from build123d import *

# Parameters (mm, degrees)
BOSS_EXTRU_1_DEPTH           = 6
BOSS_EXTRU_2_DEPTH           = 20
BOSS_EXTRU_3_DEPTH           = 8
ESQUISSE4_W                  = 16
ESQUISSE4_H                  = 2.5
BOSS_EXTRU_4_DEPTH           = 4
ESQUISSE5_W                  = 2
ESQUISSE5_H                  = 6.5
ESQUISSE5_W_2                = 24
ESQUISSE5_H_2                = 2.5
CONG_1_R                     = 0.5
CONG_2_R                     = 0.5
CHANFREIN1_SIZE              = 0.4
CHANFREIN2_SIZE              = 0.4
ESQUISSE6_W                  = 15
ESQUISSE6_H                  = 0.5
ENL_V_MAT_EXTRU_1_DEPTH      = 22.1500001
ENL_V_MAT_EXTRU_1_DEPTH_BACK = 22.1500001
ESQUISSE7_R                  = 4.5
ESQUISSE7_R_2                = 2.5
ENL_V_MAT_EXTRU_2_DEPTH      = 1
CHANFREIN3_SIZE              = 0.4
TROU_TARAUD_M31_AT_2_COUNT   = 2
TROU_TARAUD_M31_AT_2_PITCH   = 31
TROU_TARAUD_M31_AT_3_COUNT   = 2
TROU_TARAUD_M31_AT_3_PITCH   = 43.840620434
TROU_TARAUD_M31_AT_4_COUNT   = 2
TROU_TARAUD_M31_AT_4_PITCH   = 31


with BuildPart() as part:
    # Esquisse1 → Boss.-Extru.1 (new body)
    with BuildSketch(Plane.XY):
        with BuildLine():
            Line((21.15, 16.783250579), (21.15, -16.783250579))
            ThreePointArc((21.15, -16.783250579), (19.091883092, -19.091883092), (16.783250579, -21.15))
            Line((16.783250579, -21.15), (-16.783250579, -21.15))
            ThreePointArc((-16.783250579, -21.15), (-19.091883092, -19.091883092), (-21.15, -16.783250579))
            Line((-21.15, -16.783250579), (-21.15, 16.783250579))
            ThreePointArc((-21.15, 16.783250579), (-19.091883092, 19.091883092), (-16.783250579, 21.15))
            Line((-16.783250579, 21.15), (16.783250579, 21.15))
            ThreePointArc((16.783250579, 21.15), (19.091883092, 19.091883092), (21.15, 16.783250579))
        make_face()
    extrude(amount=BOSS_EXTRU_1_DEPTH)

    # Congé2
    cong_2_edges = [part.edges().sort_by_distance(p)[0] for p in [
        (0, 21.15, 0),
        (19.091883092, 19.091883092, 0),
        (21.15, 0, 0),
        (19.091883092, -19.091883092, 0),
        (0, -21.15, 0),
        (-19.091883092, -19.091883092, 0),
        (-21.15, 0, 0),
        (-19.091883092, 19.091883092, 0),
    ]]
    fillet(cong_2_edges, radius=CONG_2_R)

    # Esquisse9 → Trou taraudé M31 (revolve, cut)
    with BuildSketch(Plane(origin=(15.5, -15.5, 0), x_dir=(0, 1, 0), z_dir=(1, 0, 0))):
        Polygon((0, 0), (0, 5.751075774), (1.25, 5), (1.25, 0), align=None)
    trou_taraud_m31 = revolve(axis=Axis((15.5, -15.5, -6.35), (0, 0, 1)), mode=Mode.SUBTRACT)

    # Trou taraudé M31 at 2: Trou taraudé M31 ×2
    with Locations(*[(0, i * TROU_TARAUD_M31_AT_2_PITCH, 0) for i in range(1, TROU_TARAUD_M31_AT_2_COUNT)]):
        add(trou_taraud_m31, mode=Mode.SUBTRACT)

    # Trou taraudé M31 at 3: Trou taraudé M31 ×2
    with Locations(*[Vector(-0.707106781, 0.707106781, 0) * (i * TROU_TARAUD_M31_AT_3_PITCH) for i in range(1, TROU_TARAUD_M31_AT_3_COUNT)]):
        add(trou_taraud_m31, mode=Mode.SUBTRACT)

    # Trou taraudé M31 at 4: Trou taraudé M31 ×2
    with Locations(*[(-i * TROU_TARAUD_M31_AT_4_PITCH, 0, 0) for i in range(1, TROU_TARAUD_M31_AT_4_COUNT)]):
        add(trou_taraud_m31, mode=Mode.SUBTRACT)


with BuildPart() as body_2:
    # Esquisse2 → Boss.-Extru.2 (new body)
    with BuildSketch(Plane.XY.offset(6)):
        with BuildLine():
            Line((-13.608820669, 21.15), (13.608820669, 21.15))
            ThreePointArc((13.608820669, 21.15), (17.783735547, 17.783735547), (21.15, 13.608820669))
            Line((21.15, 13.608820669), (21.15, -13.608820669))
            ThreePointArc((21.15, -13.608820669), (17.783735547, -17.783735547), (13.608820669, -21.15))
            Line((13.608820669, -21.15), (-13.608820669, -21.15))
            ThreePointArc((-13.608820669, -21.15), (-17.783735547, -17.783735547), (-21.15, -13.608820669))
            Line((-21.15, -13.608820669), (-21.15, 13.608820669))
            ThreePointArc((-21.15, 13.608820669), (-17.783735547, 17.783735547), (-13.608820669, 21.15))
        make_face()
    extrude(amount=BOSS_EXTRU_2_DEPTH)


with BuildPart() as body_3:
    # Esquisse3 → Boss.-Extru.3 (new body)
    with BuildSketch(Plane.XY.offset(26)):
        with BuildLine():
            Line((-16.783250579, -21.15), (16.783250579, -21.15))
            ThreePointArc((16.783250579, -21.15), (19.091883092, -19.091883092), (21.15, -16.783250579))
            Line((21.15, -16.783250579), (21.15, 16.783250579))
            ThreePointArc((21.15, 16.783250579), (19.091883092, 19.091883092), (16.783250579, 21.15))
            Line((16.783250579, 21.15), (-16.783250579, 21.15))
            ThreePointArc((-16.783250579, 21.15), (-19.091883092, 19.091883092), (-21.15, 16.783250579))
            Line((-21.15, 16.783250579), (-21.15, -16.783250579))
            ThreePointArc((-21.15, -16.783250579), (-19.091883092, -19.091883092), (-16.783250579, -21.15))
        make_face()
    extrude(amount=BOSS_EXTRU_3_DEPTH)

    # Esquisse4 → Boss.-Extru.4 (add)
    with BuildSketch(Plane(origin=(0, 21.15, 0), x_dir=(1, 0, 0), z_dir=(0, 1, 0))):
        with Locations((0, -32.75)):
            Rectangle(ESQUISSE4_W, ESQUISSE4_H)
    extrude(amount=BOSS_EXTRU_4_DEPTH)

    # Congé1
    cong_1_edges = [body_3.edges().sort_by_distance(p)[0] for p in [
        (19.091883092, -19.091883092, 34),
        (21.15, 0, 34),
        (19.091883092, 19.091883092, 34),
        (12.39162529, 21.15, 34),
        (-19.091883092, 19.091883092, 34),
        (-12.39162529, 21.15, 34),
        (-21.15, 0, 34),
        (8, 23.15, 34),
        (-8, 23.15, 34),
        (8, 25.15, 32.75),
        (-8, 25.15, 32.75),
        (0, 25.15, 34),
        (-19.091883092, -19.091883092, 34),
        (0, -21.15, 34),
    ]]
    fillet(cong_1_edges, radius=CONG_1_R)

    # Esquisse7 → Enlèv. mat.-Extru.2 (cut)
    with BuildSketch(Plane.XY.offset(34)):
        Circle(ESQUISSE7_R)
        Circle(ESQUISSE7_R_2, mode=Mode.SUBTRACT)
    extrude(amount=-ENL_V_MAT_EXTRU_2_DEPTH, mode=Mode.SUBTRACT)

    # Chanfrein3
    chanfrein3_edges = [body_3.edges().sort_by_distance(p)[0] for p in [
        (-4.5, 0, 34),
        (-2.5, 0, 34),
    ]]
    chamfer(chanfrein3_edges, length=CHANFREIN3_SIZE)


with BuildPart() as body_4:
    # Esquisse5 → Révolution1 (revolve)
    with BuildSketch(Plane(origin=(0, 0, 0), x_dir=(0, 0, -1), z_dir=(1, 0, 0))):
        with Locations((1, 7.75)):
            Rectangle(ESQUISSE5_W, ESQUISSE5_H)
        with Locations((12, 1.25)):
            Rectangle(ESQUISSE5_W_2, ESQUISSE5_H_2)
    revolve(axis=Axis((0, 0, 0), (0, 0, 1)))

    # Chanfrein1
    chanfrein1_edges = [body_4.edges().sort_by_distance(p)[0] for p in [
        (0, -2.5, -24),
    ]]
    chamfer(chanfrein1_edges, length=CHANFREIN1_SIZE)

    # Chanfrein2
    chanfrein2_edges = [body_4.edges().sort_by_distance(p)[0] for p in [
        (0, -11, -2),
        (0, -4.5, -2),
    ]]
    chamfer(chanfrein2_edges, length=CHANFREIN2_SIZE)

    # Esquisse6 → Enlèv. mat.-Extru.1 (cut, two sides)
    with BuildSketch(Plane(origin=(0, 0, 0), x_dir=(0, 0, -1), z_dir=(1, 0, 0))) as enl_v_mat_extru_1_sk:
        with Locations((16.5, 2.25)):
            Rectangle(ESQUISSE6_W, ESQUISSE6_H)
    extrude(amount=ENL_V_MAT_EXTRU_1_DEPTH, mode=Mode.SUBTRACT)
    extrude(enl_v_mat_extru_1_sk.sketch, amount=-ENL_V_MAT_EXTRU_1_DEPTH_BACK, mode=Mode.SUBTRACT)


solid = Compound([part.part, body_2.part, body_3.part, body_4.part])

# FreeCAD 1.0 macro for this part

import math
import FreeCAD as App
import Part
import Sketcher
Q = App.Units.Quantity


def edges_at(feature, points):
    """Names of the edges that pass closest to the given points."""
    edges = feature.Shape.Edges
    near = lambda p: min(range(len(edges)), key=lambda i: edges[i].distToShape(Part.Vertex(*p))[0])
    return sorted({f"Edge{near(p) + 1}" for p in points})


def add_polygon(sketch, points):
    """Adds a closed chain of lines whose ends are joined by coincident constraints."""
    first, n = sketch.GeometryCount, len(points)
    for a, b in zip(points, points[1:] + points[:1]):
        sketch.addGeometry(Part.LineSegment(App.Vector(*a, 0), App.Vector(*b, 0)), False)
    for i in range(n):
        sketch.addConstraint(Sketcher.Constraint("Coincident", first + i, 2, first + (i + 1) % n, 1))

doc = App.newDocument("Part")
body = doc.addObject("PartDesign::Body", "Body")

sketch1 = body.newObject("Sketcher::SketchObject", "Sketch")
sketch1.AttachmentSupport = (doc.getObject("XY_Plane"), [""])
sketch1.MapMode = "FlatFace"
sketch1.addGeometry([
    Part.LineSegment(App.Vector(21.15, -16.783251, 0), App.Vector(21.15, 16.783251, 0)),
    Part.ArcOfCircle(Part.Circle(App.Vector(0, 0, 0), App.Vector(0, 0, 1), 27), math.radians(38.433206), math.radians(51.566794)),
    Part.LineSegment(App.Vector(16.783251, 21.15, 0), App.Vector(-16.783251, 21.15, 0)),
    Part.ArcOfCircle(Part.Circle(App.Vector(0, 0, 0), App.Vector(0, 0, 1), 27), math.radians(128.433206), math.radians(141.566794)),
    Part.LineSegment(App.Vector(-21.15, 16.783251, 0), App.Vector(-21.15, -16.783251, 0)),
    Part.ArcOfCircle(Part.Circle(App.Vector(0, 0, 0), App.Vector(0, 0, 1), 27), math.radians(-141.566794), math.radians(-128.433206)),
    Part.LineSegment(App.Vector(-16.783251, -21.15, 0), App.Vector(16.783251, -21.15, 0)),
    Part.ArcOfCircle(Part.Circle(App.Vector(0, 0, 0), App.Vector(0, 0, 1), 27), math.radians(-51.566794), math.radians(-38.433206)),
], False)
sketch1.addConstraint([
    Sketcher.Constraint("Coincident", 0, 2, 1, 1),
    Sketcher.Constraint("Coincident", 1, 2, 2, 1),
    Sketcher.Constraint("Coincident", 2, 2, 3, 1),
    Sketcher.Constraint("Coincident", 3, 2, 4, 1),
    Sketcher.Constraint("Coincident", 4, 2, 5, 1),
    Sketcher.Constraint("Coincident", 5, 2, 6, 1),
    Sketcher.Constraint("Coincident", 6, 2, 7, 1),
    Sketcher.Constraint("Coincident", 7, 2, 0, 1),
    Sketcher.Constraint("Vertical", 0),
    Sketcher.Constraint("Horizontal", 2),
    Sketcher.Constraint("Vertical", 4),
    Sketcher.Constraint("Horizontal", 6),
    Sketcher.Constraint("Coincident", 1, 3, -1, 1),
    Sketcher.Constraint("Coincident", 3, 3, -1, 1),
    Sketcher.Constraint("Coincident", 5, 3, -1, 1),
    Sketcher.Constraint("Coincident", 7, 3, -1, 1),
    Sketcher.Constraint("Equal", 1, 3),
    Sketcher.Constraint("Equal", 3, 5),
    Sketcher.Constraint("Equal", 5, 7),
    Sketcher.Constraint("Horizontal", 0, 2, 3, 2),
    Sketcher.Constraint("Vertical", 2, 2, 5, 2),
    Sketcher.Constraint("Equal", 6, 0),
    Sketcher.Constraint("Radius", 1, 27.0),
    Sketcher.Constraint("DistanceX", -1, 1, 0, 2, 21.15),
])
pad1 = body.newObject("PartDesign::Pad", "Pad")
pad1.Profile = sketch1
pad1.Length = 6
doc.recompute()

fillet = body.newObject("PartDesign::Fillet", "Fillet")
fillet.Base = (pad1, edges_at(pad1, [
    (0, 21.15, 0),
    (19.092, 19.092, 0),
    (21.15, 0, 0),
    (19.092, -19.092, 0),
    (0, -21.15, 0),
    (-19.092, -19.092, 0),
    (-21.15, 0, 0),
    (-19.092, 19.092, 0),
]))
fillet.Radius = 0.5

sketch2 = body.newObject("Sketcher::SketchObject", "Sketch001")
sketch2.AttachmentSupport = (doc.getObject("YZ_Plane"), [""])
sketch2.MapMode = "FlatFace"
sketch2.AttachmentOffset = App.Placement(App.Vector(0, 0, 15.5), App.Rotation())
add_polygon(sketch2, [(-15.5, 5.751076), (-15.5, 0), (-14.25, 0), (-14.25, 5)])
sketch2.addGeometry(Part.LineSegment(App.Vector(-15.5, 0, 0), App.Vector(-15.5, 5.751076, 0)), True)
sketch2.addConstraint([
    Sketcher.Constraint("Vertical", 0),
    Sketcher.Constraint("Horizontal", 1),
    Sketcher.Constraint("Vertical", 2),
    Sketcher.Constraint("Vertical", 4),
    Sketcher.Constraint("Coincident", 4, 1, 0, 2),
    Sketcher.Constraint("PointOnObject", 0, 2, -1),
    Sketcher.Constraint("Equal", 0, 4),
    Sketcher.Constraint("DistanceY", 2, 1, 2, 2, 5.0),
    Sketcher.Constraint("Angle", 3, Q("149 deg")),
    Sketcher.Constraint("DistanceX", 1, 1, 1, 2, 1.25),
    Sketcher.Constraint("DistanceX", 0, 2, -1, 1, 15.5),
])
groove = body.newObject("PartDesign::Groove", "Groove")
groove.Profile = sketch2
groove.ReferenceAxis = (sketch2, ["Axis0"])
groove.Angle = 360
doc.recompute()

linearpattern = body.newObject("PartDesign::LinearPattern", "LinearPattern")
linearpattern.Originals = [groove]
linearpattern.Direction = (doc.getObject("Y_Axis"), [""])
linearpattern.Mode = "offset"
linearpattern.Offset = 31
linearpattern.Occurrences = 2
body.Tip = linearpattern
doc.recompute()

datumline = body.newObject("PartDesign::Line", "DatumLine")
datumline.Placement = App.Placement(App.Vector(0, 0, 0), App.Rotation(App.Vector(0, 0, 1), App.Vector(-0.707106781, 0.707106781, 0)))
linearpattern2 = body.newObject("PartDesign::LinearPattern", "LinearPattern001")
linearpattern2.Originals = [groove]
linearpattern2.Direction = (datumline, [""])
linearpattern2.Mode = "offset"
linearpattern2.Offset = 43.84062
linearpattern2.Occurrences = 2
body.Tip = linearpattern2
doc.recompute()

linearpattern3 = body.newObject("PartDesign::LinearPattern", "LinearPattern002")
linearpattern3.Originals = [groove]
linearpattern3.Direction = (doc.getObject("X_Axis"), [""])
linearpattern3.Mode = "offset"
linearpattern3.Offset = 31
linearpattern3.Occurrences = 2
linearpattern3.Reversed = True
body.Tip = linearpattern3
body2 = doc.addObject("PartDesign::Body", "Body001")

sketch3 = body2.newObject("Sketcher::SketchObject", "Sketch002")
sketch3.AttachmentSupport = (doc.getObject("XY_Plane001"), [""])
sketch3.MapMode = "FlatFace"
sketch3.AttachmentOffset = App.Placement(App.Vector(0, 0, 6), App.Rotation())
sketch3.addGeometry([
    Part.LineSegment(App.Vector(13.608821, 21.15, 0), App.Vector(-13.608821, 21.15, 0)),
    Part.ArcOfCircle(Part.Circle(App.Vector(0, 0, 0), App.Vector(0, 0, 1), 25.15), math.radians(122.758974), math.radians(147.241026)),
    Part.LineSegment(App.Vector(-21.15, 13.608821, 0), App.Vector(-21.15, -13.608821, 0)),
    Part.ArcOfCircle(Part.Circle(App.Vector(0, 0, 0), App.Vector(0, 0, 1), 25.15), math.radians(-147.241026), math.radians(-122.758974)),
    Part.LineSegment(App.Vector(-13.608821, -21.15, 0), App.Vector(13.608821, -21.15, 0)),
    Part.ArcOfCircle(Part.Circle(App.Vector(0, 0, 0), App.Vector(0, 0, 1), 25.15), math.radians(-57.241026), math.radians(-32.758974)),
    Part.LineSegment(App.Vector(21.15, -13.608821, 0), App.Vector(21.15, 13.608821, 0)),
    Part.ArcOfCircle(Part.Circle(App.Vector(0, 0, 0), App.Vector(0, 0, 1), 25.15), math.radians(32.758974), math.radians(57.241026)),
], False)
sketch3.addConstraint([
    Sketcher.Constraint("Coincident", 0, 2, 1, 1),
    Sketcher.Constraint("Coincident", 1, 2, 2, 1),
    Sketcher.Constraint("Coincident", 2, 2, 3, 1),
    Sketcher.Constraint("Coincident", 3, 2, 4, 1),
    Sketcher.Constraint("Coincident", 4, 2, 5, 1),
    Sketcher.Constraint("Coincident", 5, 2, 6, 1),
    Sketcher.Constraint("Coincident", 6, 2, 7, 1),
    Sketcher.Constraint("Coincident", 7, 2, 0, 1),
    Sketcher.Constraint("Horizontal", 0),
    Sketcher.Constraint("Vertical", 2),
    Sketcher.Constraint("Horizontal", 4),
    Sketcher.Constraint("Vertical", 6),
    Sketcher.Constraint("Coincident", 1, 3, -1, 1),
    Sketcher.Constraint("Coincident", 3, 3, -1, 1),
    Sketcher.Constraint("Coincident", 5, 3, -1, 1),
    Sketcher.Constraint("Coincident", 7, 3, -1, 1),
    Sketcher.Constraint("Equal", 1, 3),
    Sketcher.Constraint("Equal", 3, 5),
    Sketcher.Constraint("Equal", 5, 7),
    Sketcher.Constraint("Horizontal", 2, 2, 5, 2),
    Sketcher.Constraint("Vertical", 0, 2, 3, 2),
    Sketcher.Constraint("Equal", 4, 2),
    Sketcher.Constraint("Radius", 1, 25.15),
    Sketcher.Constraint("DistanceY", -1, 1, 0, 2, 21.15),
])
pad2 = body2.newObject("PartDesign::Pad", "Pad001")
pad2.Profile = sketch3
pad2.Length = 20
body3 = doc.addObject("PartDesign::Body", "Body002")

sketch4 = body3.newObject("Sketcher::SketchObject", "Sketch003")
sketch4.AttachmentSupport = (doc.getObject("XY_Plane002"), [""])
sketch4.MapMode = "FlatFace"
sketch4.AttachmentOffset = App.Placement(App.Vector(0, 0, 26), App.Rotation())
sketch4.addGeometry([
    Part.LineSegment(App.Vector(-16.783251, -21.15, 0), App.Vector(16.783251, -21.15, 0)),
    Part.ArcOfCircle(Part.Circle(App.Vector(0, 0, 0), App.Vector(0, 0, 1), 27), math.radians(-51.566794), math.radians(-38.433206)),
    Part.LineSegment(App.Vector(21.15, -16.783251, 0), App.Vector(21.15, 16.783251, 0)),
    Part.ArcOfCircle(Part.Circle(App.Vector(0, 0, 0), App.Vector(0, 0, 1), 27), math.radians(38.433206), math.radians(51.566794)),
    Part.LineSegment(App.Vector(16.783251, 21.15, 0), App.Vector(-16.783251, 21.15, 0)),
    Part.ArcOfCircle(Part.Circle(App.Vector(0, 0, 0), App.Vector(0, 0, 1), 27), math.radians(128.433206), math.radians(141.566794)),
    Part.LineSegment(App.Vector(-21.15, 16.783251, 0), App.Vector(-21.15, -16.783251, 0)),
    Part.ArcOfCircle(Part.Circle(App.Vector(0, 0, 0), App.Vector(0, 0, 1), 27), math.radians(-141.566794), math.radians(-128.433206)),
], False)
sketch4.addConstraint([
    Sketcher.Constraint("Coincident", 0, 2, 1, 1),
    Sketcher.Constraint("Coincident", 1, 2, 2, 1),
    Sketcher.Constraint("Coincident", 2, 2, 3, 1),
    Sketcher.Constraint("Coincident", 3, 2, 4, 1),
    Sketcher.Constraint("Coincident", 4, 2, 5, 1),
    Sketcher.Constraint("Coincident", 5, 2, 6, 1),
    Sketcher.Constraint("Coincident", 6, 2, 7, 1),
    Sketcher.Constraint("Coincident", 7, 2, 0, 1),
    Sketcher.Constraint("Horizontal", 0),
    Sketcher.Constraint("Vertical", 2),
    Sketcher.Constraint("Horizontal", 4),
    Sketcher.Constraint("Vertical", 6),
    Sketcher.Constraint("Coincident", 1, 3, -1, 1),
    Sketcher.Constraint("Coincident", 3, 3, -1, 1),
    Sketcher.Constraint("Coincident", 5, 3, -1, 1),
    Sketcher.Constraint("Coincident", 7, 3, -1, 1),
    Sketcher.Constraint("Equal", 1, 3),
    Sketcher.Constraint("Equal", 3, 5),
    Sketcher.Constraint("Equal", 5, 7),
    Sketcher.Constraint("Horizontal", 2, 2, 5, 2),
    Sketcher.Constraint("Vertical", 0, 2, 3, 2),
    Sketcher.Constraint("Equal", 4, 2),
    Sketcher.Constraint("Radius", 1, 27.0),
    Sketcher.Constraint("DistanceY", 0, 2, -1, 1, 21.15),
])
pad3 = body3.newObject("PartDesign::Pad", "Pad002")
pad3.Profile = sketch4
pad3.Length = 8

sketch5 = body3.newObject("Sketcher::SketchObject", "Sketch004")
sketch5.AttachmentSupport = (doc.getObject("XZ_Plane002"), [""])
sketch5.MapMode = "FlatFace"
sketch5.AttachmentOffset = App.Placement(App.Vector(0, 0, -21.15), App.Rotation())
add_polygon(sketch5, [(-8, 31.5), (-8, 34), (8, 34), (8, 31.5)])
sketch5.addConstraint([
    Sketcher.Constraint("Vertical", 0),
    Sketcher.Constraint("Horizontal", 1),
    Sketcher.Constraint("Vertical", 2),
    Sketcher.Constraint("Horizontal", 3),
    Sketcher.Constraint("DistanceX", 1, 1, 1, 2, 16.0),
    Sketcher.Constraint("DistanceY", 0, 1, 0, 2, 2.5),
    Sketcher.Constraint("DistanceX", 0, 2, -1, 1, 8.0),
    Sketcher.Constraint("DistanceY", -1, 1, 0, 2, 34.0),
])
pad4 = body3.newObject("PartDesign::Pad", "Pad003")
pad4.Profile = sketch5
pad4.Length = 4
pad4.Reversed = True
doc.recompute()

fillet2 = body3.newObject("PartDesign::Fillet", "Fillet001")
fillet2.Base = (pad4, edges_at(pad4, [
    (19.092, -19.092, 34),
    (21.15, 0, 34),
    (19.092, 19.092, 34),
    (12.392, 21.15, 34),
    (-19.092, 19.092, 34),
    (-12.392, 21.15, 34),
    (-21.15, 0, 34),
    (8, 23.15, 34),
    (-8, 23.15, 34),
    (8, 25.15, 32.75),
    (-8, 25.15, 32.75),
    (0, 25.15, 34),
    (-19.092, -19.092, 34),
    (0, -21.15, 34),
]))
fillet2.Radius = 0.5

sketch6 = body3.newObject("Sketcher::SketchObject", "Sketch005")
sketch6.AttachmentSupport = (doc.getObject("XY_Plane002"), [""])
sketch6.MapMode = "FlatFace"
sketch6.AttachmentOffset = App.Placement(App.Vector(0, 0, 34), App.Rotation())
sketch6.addGeometry([
    Part.Circle(App.Vector(0, 0, 0), App.Vector(0, 0, 1), 4.5),
    Part.Circle(App.Vector(0, 0, 0), App.Vector(0, 0, 1), 2.5),
], False)
sketch6.addConstraint([
    Sketcher.Constraint("Coincident", 0, 3, -1, 1),
    Sketcher.Constraint("Coincident", 1, 3, -1, 1),
    Sketcher.Constraint("Diameter", 0, 9.0),
    Sketcher.Constraint("Diameter", 1, 5.0),
])
pocket1 = body3.newObject("PartDesign::Pocket", "Pocket")
pocket1.Profile = sketch6
pocket1.Length = 1
doc.recompute()

chamfer = body3.newObject("PartDesign::Chamfer", "Chamfer")
chamfer.Base = (pocket1, edges_at(pocket1, [(-4.5, 0, 34), (-2.5, 0, 34)]))
chamfer.Size = 0.4
body4 = doc.addObject("PartDesign::Body", "Body003")
body4.AllowCompound = True

sketch7 = body4.newObject("Sketcher::SketchObject", "Sketch006")
sketch7.AttachmentSupport = (doc.getObject("YZ_Plane003"), [""])
sketch7.MapMode = "FlatFace"
add_polygon(sketch7, [(11, 0), (4.5, 0), (4.5, -2), (11, -2)])
add_polygon(sketch7, [(2.5, 0), (0, 0), (0, -24), (2.5, -24)])
sketch7.addConstraint([
    Sketcher.Constraint("Horizontal", 0),
    Sketcher.Constraint("Vertical", 1),
    Sketcher.Constraint("Horizontal", 2),
    Sketcher.Constraint("Vertical", 3),
    Sketcher.Constraint("Horizontal", 4),
    Sketcher.Constraint("Vertical", 5),
    Sketcher.Constraint("Horizontal", 6),
    Sketcher.Constraint("Vertical", 7),
    Sketcher.Constraint("Coincident", 4, 2, -1, 1),
    Sketcher.Constraint("PointOnObject", 0, 2, -1),
    Sketcher.Constraint("DistanceY", 1, 2, 1, 1, 2.0),
    Sketcher.Constraint("DistanceY", 5, 2, 5, 1, 24.0),
    Sketcher.Constraint("DistanceX", 0, 2, 0, 1, 6.5),
    Sketcher.Constraint("DistanceX", 4, 2, 4, 1, 2.5),
    Sketcher.Constraint("DistanceX", -1, 1, 2, 2, 11.0),
])
revolution = body4.newObject("PartDesign::Revolution", "Revolution")
revolution.Profile = sketch7
revolution.ReferenceAxis = (sketch7, ["V_Axis"])
revolution.Angle = 360
doc.recompute()

chamfer2 = body4.newObject("PartDesign::Chamfer", "Chamfer001")
chamfer2.Base = (revolution, edges_at(revolution, [(0, -2.5, -24)]))
chamfer2.Size = 0.4
doc.recompute()

chamfer3 = body4.newObject("PartDesign::Chamfer", "Chamfer002")
chamfer3.Base = (chamfer2, edges_at(chamfer2, [(0, -11, -2), (0, -4.5, -2)]))
chamfer3.Size = 0.4

sketch8 = body4.newObject("Sketcher::SketchObject", "Sketch007")
sketch8.AttachmentSupport = (doc.getObject("YZ_Plane003"), [""])
sketch8.MapMode = "FlatFace"
add_polygon(sketch8, [(2.5, -9), (2, -9), (2, -24), (2.5, -24)])
sketch8.addConstraint([
    Sketcher.Constraint("Horizontal", 0),
    Sketcher.Constraint("Vertical", 1),
    Sketcher.Constraint("Horizontal", 2),
    Sketcher.Constraint("Vertical", 3),
    Sketcher.Constraint("DistanceY", 1, 2, 1, 1, 15.0),
    Sketcher.Constraint("DistanceX", 0, 2, 0, 1, 0.5),
    Sketcher.Constraint("DistanceX", -1, 1, 0, 2, 2.0),
    Sketcher.Constraint("DistanceY", 0, 2, -1, 1, 9.0),
])
pocket2 = body4.newObject("PartDesign::Pocket", "Pocket001")
pocket2.Profile = sketch8
pocket2.Type = "ThroughAll"
pocket2.Midplane = True

doc.recompute()
